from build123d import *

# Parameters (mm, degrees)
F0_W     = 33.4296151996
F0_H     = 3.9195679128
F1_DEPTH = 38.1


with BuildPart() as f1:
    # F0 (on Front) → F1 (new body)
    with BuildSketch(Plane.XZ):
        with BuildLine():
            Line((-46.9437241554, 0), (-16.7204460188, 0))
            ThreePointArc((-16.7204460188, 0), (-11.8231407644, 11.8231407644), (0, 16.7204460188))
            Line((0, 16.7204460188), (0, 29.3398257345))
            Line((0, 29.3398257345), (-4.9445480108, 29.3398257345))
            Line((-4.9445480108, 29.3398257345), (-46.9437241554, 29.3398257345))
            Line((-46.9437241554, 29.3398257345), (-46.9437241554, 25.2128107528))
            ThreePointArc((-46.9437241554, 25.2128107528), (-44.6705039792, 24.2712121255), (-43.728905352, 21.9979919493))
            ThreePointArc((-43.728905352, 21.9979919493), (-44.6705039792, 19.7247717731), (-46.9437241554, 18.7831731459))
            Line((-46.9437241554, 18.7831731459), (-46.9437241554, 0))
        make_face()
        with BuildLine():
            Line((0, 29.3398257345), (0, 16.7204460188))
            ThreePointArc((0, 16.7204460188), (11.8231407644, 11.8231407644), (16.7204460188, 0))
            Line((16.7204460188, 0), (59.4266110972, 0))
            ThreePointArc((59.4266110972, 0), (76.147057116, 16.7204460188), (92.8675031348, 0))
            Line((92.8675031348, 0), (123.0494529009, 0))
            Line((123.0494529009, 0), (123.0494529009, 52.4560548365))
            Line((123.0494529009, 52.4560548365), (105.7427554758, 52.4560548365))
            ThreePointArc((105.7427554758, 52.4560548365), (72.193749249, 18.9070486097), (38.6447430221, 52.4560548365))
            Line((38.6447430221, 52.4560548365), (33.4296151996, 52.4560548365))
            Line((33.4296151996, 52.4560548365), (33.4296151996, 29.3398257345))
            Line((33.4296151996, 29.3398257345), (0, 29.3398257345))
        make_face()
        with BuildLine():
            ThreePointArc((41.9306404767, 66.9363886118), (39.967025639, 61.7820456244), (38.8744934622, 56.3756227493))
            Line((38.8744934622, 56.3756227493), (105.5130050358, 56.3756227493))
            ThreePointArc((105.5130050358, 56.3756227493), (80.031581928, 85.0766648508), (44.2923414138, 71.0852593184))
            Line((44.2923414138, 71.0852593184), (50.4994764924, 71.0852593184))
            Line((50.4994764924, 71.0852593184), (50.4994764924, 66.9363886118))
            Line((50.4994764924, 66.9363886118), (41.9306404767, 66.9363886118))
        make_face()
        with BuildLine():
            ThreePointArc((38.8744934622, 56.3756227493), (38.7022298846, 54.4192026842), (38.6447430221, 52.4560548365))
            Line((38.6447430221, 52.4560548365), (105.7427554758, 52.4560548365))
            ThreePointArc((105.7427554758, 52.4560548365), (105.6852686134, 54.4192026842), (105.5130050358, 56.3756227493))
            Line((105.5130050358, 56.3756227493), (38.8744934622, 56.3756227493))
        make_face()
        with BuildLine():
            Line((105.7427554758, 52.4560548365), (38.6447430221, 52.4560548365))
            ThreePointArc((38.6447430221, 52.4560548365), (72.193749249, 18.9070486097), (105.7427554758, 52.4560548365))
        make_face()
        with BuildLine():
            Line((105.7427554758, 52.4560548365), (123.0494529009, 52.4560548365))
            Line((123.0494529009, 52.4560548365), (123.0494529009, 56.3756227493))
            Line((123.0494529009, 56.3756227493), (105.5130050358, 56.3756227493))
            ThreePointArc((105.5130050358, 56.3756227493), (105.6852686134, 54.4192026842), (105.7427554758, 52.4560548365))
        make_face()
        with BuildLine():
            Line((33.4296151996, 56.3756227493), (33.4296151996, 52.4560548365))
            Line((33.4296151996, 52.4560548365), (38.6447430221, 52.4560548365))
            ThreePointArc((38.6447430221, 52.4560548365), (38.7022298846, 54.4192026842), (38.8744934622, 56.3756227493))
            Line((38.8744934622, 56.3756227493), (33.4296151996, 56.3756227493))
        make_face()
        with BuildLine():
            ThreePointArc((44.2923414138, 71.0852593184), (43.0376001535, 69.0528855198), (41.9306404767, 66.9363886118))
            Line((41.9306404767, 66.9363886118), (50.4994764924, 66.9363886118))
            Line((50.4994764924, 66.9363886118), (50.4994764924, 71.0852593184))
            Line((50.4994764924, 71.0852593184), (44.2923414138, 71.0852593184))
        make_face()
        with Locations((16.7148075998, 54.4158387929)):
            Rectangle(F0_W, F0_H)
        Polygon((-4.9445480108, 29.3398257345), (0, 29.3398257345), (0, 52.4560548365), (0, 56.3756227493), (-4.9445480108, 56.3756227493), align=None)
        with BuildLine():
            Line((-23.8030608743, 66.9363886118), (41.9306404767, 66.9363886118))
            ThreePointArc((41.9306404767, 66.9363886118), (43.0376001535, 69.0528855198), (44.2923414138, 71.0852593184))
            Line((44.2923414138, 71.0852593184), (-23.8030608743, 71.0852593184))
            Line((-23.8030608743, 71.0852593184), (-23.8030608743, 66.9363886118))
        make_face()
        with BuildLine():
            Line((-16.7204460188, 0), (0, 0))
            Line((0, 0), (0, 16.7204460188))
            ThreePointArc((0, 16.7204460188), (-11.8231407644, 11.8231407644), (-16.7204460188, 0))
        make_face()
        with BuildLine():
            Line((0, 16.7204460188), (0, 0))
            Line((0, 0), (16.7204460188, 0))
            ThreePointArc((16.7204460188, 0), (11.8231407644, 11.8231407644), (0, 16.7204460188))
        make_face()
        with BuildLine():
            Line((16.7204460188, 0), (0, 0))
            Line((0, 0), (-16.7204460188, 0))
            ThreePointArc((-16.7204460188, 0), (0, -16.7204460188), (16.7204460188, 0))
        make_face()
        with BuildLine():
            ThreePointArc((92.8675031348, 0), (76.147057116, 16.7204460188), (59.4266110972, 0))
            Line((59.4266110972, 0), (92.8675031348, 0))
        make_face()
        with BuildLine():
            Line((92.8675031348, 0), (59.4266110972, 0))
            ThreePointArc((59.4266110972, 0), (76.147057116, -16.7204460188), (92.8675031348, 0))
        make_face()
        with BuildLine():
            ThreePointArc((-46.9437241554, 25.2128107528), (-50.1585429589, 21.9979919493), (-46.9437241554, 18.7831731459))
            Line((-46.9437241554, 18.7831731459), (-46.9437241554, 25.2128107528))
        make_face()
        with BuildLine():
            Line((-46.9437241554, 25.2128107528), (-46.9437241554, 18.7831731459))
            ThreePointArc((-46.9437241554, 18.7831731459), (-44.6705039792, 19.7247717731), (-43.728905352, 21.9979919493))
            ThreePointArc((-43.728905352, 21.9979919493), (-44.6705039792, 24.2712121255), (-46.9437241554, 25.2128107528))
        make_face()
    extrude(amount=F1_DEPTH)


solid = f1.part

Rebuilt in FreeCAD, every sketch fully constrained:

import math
import FreeCAD as App
import Part
import Sketcher
Q = App.Units.Quantity


def add_polygon(sketch, points):
    """Adds a closed chain of lines whose ends are joined by coincident constraints."""
    first, n = sketch.GeometryCount, len(points)
    for a, b in zip(points, points[1:] + points[:1]):
        sketch.addGeometry(Part.LineSegment(App.Vector(*a, 0), App.Vector(*b, 0)), False)
    for i in range(n):
        sketch.addConstraint(Sketcher.Constraint("Coincident", first + i, 2, first + (i + 1) % n, 1))

doc = App.newDocument("Part")
body = doc.addObject("PartDesign::Body", "Body")

# Sketch on XZ plane
sketch1 = body.newObject("Sketcher::SketchObject", "Sketch")
sketch1.AttachmentSupport = (doc.getObject("XZ_Plane"), [""])
sketch1.MapMode = "FlatFace"
sketch1.addGeometry(Part.LineSegment(App.Vector(-46.9, 0, 0), App.Vector(-16.7, 0, 0)), False)  # 0
sketch1.addGeometry(Part.ArcOfCircle(Part.Circle(App.Vector(0, 0, 0), App.Vector(0, 0, 1), 16.7), math.radians(180), math.radians(360)), False)  # 1
sketch1.addGeometry(Part.LineSegment(App.Vector(16.7, 0, 0), App.Vector(59.4, 0, 0)), False)  # 2
sketch1.addGeometry(Part.ArcOfCircle(Part.Circle(App.Vector(76.1, 0, 0), App.Vector(0, 0, 1), 16.7), math.radians(180), math.radians(360)), False)  # 3
sketch1.addGeometry(Part.LineSegment(App.Vector(92.9, 0, 0), App.Vector(123, 0, 0)), False)  # 4
sketch1.addGeometry(Part.LineSegment(App.Vector(123, 0, 0), App.Vector(123, 56.4, 0)), False)  # 5
sketch1.addGeometry(Part.LineSegment(App.Vector(123, 56.4, 0), App.Vector(105.5, 56.4, 0)), False)  # 6
sketch1.addGeometry(Part.ArcOfCircle(Part.Circle(App.Vector(72.2, 52.5, 0), App.Vector(0, 0, 1), 33.5), math.radians(7), math.radians(146)), False)  # 7
sketch1.addGeometry(Part.LineSegment(App.Vector(44.3, 71.1, 0), App.Vector(-23.8, 71.1, 0)), False)  # 8
sketch1.addGeometry(Part.LineSegment(App.Vector(-23.8, 71.1, 0), App.Vector(-23.8, 66.9, 0)), False)  # 9
sketch1.addGeometry(Part.LineSegment(App.Vector(-23.8, 66.9, 0), App.Vector(41.9, 66.9, 0)), False)  # 10
sketch1.addGeometry(Part.ArcOfCircle(Part.Circle(App.Vector(72.2, 52.5, 0), App.Vector(0, 0, 1), 33.5), math.radians(154.43), math.radians(173.29)), False)  # 11
sketch1.addGeometry(Part.LineSegment(App.Vector(38.9, 56.4, 0), App.Vector(-4.9, 56.4, 0)), False)  # 12
sketch1.addGeometry(Part.LineSegment(App.Vector(-4.9, 56.4, 0), App.Vector(-4.9, 29.3, 0)), False)  # 13
sketch1.addGeometry(Part.LineSegment(App.Vector(-4.9, 29.3, 0), App.Vector(-46.9, 29.3, 0)), False)  # 14
sketch1.addGeometry(Part.LineSegment(App.Vector(-46.9, 29.3, 0), App.Vector(-46.9, 25.2, 0)), False)  # 15
sketch1.addGeometry(Part.ArcOfCircle(Part.Circle(App.Vector(-46.9, 22, 0), App.Vector(0, 0, 1), 3.2), math.radians(90), math.radians(270)), False)  # 16
sketch1.addGeometry(Part.LineSegment(App.Vector(-46.9, 18.8, 0), App.Vector(-46.9, 0, 0)), False)  # 17
add_polygon(sketch1, [(0, 52.5), (33.4, 52.5), (33.4, 29.3), (0, 29.3)])  # lines 18-21
sketch1.addConstraint([
    Sketcher.Constraint("Coincident", 0, 2, 1, 1),
    Sketcher.Constraint("Coincident", 1, 2, 2, 1),
    Sketcher.Constraint("Coincident", 2, 2, 3, 1),
    Sketcher.Constraint("Coincident", 3, 2, 4, 1),
    Sketcher.Constraint("Coincident", 4, 2, 5, 1),
    Sketcher.Constraint("Coincident", 5, 2, 6, 1),
    Sketcher.Constraint("Coincident", 6, 2, 7, 1),
    Sketcher.Constraint("Coincident", 7, 2, 8, 1),
    Sketcher.Constraint("Coincident", 8, 2, 9, 1),
    Sketcher.Constraint("Coincident", 9, 2, 10, 1),
    Sketcher.Constraint("Coincident", 10, 2, 11, 1),
    Sketcher.Constraint("Coincident", 11, 2, 12, 1),
    Sketcher.Constraint("Coincident", 12, 2, 13, 1),
    Sketcher.Constraint("Coincident", 13, 2, 14, 1),
    Sketcher.Constraint("Coincident", 14, 2, 15, 1),
    Sketcher.Constraint("Coincident", 15, 2, 16, 1),
    Sketcher.Constraint("Coincident", 16, 2, 17, 1),
    Sketcher.Constraint("Coincident", 17, 2, 0, 1),
    Sketcher.Constraint("Horizontal", 0),
    Sketcher.Constraint("Horizontal", 2),
    Sketcher.Constraint("Horizontal", 4),
    Sketcher.Constraint("Vertical", 5),
    Sketcher.Constraint("Horizontal", 6),
    Sketcher.Constraint("Horizontal", 8),
    Sketcher.Constraint("Vertical", 9),
    Sketcher.Constraint("Horizontal", 10),
    Sketcher.Constraint("Horizontal", 12),
    Sketcher.Constraint("Vertical", 13),
    Sketcher.Constraint("Horizontal", 14),
    Sketcher.Constraint("Vertical", 15),
    Sketcher.Constraint("Vertical", 17),
    Sketcher.Constraint("Horizontal", 18),
    Sketcher.Constraint("Vertical", 19),
    Sketcher.Constraint("Horizontal", 20),
    Sketcher.Constraint("Vertical", 21),
    Sketcher.Constraint("Coincident", 1, 3, -1, 1),
    Sketcher.Constraint("Coincident", 11, 3, 7, 3),
    Sketcher.Constraint("Equal", 1, 3),
    Sketcher.Constraint("Equal", 7, 11),
    Sketcher.Constraint("PointOnObject", 3, 3, -1),
    Sketcher.Constraint("PointOnObject", 0, 2, -1),
    Sketcher.Constraint("PointOnObject", 1, 2, -1),
    Sketcher.Constraint("PointOnObject", 3, 2, -1),
    Sketcher.Constraint("PointOnObject", 20, 2, -2),
    Sketcher.Constraint("Horizontal", 6, 2, 11, 2),
    Sketcher.Constraint("Horizontal", 11, 3, 18, 2),
    Sketcher.Constraint("Horizontal", 14, 2, 19, 2),
    Sketcher.Constraint("Vertical", 16, 3, 14, 2),
    Sketcher.Constraint("Vertical", 15, 2, 16, 2),
    Sketcher.Constraint("Radius", 16, 3.214819),
    Sketcher.Constraint("DistanceX", 10, 1, 10, 2, 65.733701),
    Sketcher.Constraint("Radius", 1, 16.720446),
    Sketcher.Constraint("Radius", 7, 33.549006),
    Sketcher.Constraint("DistanceX", 0, 1, 0, 2, 30.223278),
    Sketcher.Constraint("DistanceX", 4, 1, 4, 2, 30.18195),
    Sketcher.Constraint("DistanceX", 12, 2, 12, 1, 43.819041),
    Sketcher.Constraint("DistanceY", 9, 2, 9, 1, 4.148871),
    Sketcher.Constraint("DistanceY", 19, 2, 19, 1, 23.116229),
    Sketcher.Constraint("DistanceX", 3, 2, 6, 2, 12.645502),
    Sketcher.Constraint("DistanceX", 10, 2, 7, 2, 2.361701),
    Sketcher.Constraint("DistanceX", 0, 2, 13, 2, 11.775898),
    Sketcher.Constraint("DistanceX", 2, 1, 2, 2, 42.706165),
    Sketcher.Constraint("DistanceX", 18, 1, 18, 2, 33.429615),
    Sketcher.Constraint("DistanceY", 5, 1, 5, 2, 56.375623),
    Sketcher.Constraint("DistanceY", 15, 2, 15, 1, 4.127015),
])
pad1 = body.newObject("PartDesign::Pad", "Pad")
pad1.Profile = sketch1
pad1.Length = Q("1.5 in")

doc.recompute()
